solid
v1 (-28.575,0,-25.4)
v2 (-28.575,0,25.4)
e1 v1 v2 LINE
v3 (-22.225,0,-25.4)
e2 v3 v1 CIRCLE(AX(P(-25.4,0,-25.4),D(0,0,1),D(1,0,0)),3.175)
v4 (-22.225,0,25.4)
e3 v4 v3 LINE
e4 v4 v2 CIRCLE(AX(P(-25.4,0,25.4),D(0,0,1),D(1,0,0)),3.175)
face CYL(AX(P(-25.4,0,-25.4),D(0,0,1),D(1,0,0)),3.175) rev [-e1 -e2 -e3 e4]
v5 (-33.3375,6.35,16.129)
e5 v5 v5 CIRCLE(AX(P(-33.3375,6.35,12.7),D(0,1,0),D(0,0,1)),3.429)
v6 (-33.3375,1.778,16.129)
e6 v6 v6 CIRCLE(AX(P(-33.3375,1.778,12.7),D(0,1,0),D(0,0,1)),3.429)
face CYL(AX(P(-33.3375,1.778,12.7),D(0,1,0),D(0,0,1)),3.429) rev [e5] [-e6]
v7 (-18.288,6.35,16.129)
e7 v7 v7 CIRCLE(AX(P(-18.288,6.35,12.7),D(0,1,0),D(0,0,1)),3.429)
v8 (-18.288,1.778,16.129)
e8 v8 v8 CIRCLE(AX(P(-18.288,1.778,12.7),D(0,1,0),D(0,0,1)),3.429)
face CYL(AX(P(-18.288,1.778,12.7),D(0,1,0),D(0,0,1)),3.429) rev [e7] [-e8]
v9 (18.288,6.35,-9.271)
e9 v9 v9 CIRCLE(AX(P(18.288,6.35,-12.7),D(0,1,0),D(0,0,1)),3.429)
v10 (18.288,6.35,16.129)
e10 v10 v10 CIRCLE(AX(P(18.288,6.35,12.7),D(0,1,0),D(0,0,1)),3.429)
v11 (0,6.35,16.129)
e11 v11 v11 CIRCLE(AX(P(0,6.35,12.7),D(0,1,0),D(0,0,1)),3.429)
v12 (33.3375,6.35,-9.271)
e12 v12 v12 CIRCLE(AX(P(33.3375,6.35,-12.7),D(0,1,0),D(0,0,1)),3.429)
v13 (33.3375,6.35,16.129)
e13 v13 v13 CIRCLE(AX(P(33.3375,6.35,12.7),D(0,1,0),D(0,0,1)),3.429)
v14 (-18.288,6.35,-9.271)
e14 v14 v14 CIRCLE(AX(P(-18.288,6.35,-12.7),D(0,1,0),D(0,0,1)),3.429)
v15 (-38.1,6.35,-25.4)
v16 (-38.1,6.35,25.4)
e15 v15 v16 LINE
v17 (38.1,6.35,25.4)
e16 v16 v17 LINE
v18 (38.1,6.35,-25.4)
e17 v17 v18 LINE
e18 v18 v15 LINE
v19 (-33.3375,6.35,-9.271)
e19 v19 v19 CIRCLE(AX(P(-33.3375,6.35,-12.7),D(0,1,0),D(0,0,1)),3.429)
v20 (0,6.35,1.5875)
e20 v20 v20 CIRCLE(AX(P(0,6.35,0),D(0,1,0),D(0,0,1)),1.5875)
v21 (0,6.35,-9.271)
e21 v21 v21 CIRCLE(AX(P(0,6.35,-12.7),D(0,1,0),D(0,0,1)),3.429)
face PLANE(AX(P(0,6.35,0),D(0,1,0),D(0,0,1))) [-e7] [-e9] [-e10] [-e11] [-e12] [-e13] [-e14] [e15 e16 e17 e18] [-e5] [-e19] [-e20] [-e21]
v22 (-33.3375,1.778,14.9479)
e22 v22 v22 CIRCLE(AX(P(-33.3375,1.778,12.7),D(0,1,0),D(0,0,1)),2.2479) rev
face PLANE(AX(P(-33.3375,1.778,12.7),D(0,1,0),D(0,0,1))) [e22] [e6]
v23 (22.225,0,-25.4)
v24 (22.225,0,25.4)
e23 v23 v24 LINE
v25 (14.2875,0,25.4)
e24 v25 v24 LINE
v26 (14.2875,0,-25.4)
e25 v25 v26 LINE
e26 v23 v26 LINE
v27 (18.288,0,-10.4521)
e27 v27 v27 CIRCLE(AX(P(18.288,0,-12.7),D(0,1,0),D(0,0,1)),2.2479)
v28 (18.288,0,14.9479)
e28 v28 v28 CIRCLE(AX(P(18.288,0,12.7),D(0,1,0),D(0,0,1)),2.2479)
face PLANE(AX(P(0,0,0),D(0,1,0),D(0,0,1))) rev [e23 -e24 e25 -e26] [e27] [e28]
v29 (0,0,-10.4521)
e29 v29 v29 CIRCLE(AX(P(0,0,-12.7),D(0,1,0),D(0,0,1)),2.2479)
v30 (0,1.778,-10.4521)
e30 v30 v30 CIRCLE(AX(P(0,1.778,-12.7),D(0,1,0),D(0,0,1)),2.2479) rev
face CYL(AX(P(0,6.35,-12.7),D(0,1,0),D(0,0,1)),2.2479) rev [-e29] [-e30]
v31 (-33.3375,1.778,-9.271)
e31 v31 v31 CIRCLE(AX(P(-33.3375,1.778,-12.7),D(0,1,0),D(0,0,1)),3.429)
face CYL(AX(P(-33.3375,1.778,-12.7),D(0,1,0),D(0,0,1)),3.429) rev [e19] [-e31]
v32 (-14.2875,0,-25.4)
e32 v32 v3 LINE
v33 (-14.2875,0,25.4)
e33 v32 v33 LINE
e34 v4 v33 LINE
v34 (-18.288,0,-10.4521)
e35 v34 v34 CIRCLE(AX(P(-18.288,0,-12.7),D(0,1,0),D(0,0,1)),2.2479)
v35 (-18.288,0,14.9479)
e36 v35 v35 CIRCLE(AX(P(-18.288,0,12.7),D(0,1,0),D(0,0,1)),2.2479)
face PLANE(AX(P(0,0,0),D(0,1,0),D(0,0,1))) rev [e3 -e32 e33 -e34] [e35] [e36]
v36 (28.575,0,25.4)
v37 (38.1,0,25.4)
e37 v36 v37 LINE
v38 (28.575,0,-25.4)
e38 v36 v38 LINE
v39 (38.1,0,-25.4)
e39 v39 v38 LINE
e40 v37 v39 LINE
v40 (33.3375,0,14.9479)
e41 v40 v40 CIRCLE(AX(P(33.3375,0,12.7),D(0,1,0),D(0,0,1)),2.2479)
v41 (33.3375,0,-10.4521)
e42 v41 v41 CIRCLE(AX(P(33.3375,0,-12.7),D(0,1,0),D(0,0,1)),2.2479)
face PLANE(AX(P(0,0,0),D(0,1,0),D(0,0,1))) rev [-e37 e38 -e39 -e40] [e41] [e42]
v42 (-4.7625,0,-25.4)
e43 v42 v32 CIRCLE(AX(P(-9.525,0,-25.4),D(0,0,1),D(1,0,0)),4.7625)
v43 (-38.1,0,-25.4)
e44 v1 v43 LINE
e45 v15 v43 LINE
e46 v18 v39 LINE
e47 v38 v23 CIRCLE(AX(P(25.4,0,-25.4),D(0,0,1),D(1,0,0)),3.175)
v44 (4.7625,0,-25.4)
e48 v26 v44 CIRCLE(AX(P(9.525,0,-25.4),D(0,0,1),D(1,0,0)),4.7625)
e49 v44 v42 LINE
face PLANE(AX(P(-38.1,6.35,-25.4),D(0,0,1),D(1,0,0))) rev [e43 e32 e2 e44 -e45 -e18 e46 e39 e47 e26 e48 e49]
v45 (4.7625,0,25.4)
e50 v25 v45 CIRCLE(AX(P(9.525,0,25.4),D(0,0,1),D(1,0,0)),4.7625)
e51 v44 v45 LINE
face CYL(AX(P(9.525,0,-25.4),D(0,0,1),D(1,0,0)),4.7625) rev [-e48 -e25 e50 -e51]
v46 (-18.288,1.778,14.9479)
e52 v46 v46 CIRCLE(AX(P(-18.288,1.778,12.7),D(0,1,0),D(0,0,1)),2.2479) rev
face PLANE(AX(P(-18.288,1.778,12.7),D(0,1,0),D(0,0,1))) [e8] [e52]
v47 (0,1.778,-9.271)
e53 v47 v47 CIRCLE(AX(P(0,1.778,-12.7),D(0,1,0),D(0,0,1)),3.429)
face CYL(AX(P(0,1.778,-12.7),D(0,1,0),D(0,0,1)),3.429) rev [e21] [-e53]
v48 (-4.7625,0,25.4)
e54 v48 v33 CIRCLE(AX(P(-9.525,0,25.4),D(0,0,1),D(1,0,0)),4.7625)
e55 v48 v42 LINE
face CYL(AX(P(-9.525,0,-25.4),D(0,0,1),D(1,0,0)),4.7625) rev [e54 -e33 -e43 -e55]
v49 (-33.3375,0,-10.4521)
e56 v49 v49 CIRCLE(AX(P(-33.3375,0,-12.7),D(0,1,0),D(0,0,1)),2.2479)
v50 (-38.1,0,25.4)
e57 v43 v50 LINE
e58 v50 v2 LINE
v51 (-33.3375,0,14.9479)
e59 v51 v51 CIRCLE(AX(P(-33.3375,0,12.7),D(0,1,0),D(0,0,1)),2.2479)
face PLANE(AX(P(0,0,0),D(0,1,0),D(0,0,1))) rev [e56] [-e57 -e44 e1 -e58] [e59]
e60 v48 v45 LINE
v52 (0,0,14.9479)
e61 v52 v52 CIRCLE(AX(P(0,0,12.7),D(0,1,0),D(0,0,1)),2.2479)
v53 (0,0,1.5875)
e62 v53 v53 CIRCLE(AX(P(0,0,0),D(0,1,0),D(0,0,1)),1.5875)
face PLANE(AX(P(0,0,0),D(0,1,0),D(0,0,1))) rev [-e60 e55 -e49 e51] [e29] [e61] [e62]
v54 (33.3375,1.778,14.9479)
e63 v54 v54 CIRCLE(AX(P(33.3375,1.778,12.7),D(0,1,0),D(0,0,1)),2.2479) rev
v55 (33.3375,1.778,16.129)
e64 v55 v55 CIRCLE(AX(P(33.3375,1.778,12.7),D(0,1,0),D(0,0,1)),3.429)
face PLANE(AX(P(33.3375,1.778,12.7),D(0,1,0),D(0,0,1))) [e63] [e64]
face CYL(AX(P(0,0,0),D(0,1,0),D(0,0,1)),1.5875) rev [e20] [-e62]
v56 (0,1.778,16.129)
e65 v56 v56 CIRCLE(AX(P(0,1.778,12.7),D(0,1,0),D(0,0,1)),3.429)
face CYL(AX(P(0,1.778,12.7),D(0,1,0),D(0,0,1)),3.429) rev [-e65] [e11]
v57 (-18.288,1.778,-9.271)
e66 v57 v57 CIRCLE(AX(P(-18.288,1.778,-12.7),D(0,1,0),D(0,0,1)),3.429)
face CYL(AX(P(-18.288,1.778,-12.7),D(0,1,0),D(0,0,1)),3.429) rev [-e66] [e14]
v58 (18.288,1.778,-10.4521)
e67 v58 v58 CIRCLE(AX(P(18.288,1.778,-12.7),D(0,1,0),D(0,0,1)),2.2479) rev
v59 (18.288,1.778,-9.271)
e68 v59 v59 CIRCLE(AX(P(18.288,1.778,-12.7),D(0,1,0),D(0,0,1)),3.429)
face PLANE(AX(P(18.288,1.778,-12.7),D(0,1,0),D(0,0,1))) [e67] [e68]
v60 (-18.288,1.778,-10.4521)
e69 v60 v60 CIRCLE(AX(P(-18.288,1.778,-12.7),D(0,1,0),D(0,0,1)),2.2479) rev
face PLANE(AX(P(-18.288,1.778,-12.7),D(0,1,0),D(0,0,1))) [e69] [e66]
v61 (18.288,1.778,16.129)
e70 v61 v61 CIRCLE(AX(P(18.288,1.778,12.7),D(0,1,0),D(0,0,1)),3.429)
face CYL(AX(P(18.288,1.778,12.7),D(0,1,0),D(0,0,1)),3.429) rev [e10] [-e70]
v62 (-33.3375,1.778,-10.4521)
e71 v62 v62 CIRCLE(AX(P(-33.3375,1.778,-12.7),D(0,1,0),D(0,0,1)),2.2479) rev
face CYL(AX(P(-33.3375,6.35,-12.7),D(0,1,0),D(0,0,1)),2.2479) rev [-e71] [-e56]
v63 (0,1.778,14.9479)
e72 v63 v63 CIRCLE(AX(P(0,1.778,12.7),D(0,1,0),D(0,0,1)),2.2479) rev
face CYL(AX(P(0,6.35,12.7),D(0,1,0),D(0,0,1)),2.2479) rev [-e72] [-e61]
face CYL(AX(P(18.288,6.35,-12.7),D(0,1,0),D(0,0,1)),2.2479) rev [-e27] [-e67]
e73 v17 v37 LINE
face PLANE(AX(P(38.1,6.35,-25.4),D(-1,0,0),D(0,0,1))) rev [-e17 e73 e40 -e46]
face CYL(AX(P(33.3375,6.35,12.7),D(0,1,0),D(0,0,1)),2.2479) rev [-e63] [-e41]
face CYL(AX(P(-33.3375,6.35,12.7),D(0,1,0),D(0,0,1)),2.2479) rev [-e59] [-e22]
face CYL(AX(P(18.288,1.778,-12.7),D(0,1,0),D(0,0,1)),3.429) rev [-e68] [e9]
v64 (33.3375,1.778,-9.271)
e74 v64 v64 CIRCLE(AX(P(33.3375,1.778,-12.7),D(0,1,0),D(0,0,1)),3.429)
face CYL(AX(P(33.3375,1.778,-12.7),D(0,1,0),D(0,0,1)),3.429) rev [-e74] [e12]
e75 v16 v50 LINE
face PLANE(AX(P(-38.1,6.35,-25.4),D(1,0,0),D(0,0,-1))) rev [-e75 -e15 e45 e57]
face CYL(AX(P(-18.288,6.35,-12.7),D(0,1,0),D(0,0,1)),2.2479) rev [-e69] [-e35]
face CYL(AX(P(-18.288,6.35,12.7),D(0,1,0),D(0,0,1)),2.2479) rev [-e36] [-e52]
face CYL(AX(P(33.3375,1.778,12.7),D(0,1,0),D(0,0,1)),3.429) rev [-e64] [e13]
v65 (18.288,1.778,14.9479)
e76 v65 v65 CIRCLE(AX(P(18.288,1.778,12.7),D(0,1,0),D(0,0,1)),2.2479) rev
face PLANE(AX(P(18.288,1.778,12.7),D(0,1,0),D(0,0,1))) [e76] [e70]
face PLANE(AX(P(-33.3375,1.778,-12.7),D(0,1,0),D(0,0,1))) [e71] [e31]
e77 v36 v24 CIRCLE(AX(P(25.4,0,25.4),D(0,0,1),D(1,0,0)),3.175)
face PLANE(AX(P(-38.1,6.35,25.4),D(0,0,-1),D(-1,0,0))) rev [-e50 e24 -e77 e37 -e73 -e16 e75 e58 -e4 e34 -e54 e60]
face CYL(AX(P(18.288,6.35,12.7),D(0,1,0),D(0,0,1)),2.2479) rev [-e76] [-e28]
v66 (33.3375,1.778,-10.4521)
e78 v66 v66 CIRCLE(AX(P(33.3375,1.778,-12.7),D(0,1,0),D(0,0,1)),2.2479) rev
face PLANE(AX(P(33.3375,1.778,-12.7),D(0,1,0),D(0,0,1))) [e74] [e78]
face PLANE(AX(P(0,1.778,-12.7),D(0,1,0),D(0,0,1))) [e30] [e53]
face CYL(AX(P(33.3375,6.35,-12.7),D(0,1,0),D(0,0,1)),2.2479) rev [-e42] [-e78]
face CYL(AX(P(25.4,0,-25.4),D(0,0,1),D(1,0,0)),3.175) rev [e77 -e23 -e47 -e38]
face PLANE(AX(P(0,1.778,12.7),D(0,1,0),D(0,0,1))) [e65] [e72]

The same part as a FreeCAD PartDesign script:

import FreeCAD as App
import Part
import Sketcher
from FreeCAD import Vector
Q = App.Units.Quantity

doc = App.newDocument("Part")
body = doc.addObject("PartDesign::Body", "Body")

# Sketch on XZ plane
sketch1 = doc.addObject("Sketcher::SketchObject", "Sketch")
body.addObject(sketch1)
sketch1.AttachmentSupport = (doc.XZ_Plane, [""])
sketch1.MapMode = "FlatFace"
sketch1.addGeometry([
    Part.LineSegment(Vector(-38, -25, 0), Vector(-38, 25, 0)),
    Part.LineSegment(Vector(-38, 25, 0), Vector(38, 25, 0)),
    Part.LineSegment(Vector(38, 25, 0), Vector(38, -25, 0)),
    Part.LineSegment(Vector(38, -25, 0), Vector(-38, -25, 0)),
], False)
sketch1.addConstraint([
    Sketcher.Constraint("Coincident", 0, 2, 1, 1),
    Sketcher.Constraint("Coincident", 1, 2, 2, 1),
    Sketcher.Constraint("Coincident", 2, 2, 3, 1),
    Sketcher.Constraint("Coincident", 3, 2, 0, 1),
    Sketcher.Constraint("Vertical", 0),
    Sketcher.Constraint("Horizontal", 1),
    Sketcher.Constraint("Vertical", 2),
    Sketcher.Constraint("Horizontal", 3),
    Sketcher.Constraint("Symmetric", 0, 2, 2, 2, -1, 1),
    Sketcher.Constraint("DistanceX", 1, 1, 1, 2, Q("3 in")),
    Sketcher.Constraint("DistanceY", 0, 1, 0, 2, Q("2 in")),
])
pad1 = doc.addObject("PartDesign::Pad", "Pad")
body.addObject(pad1)
pad1.Profile = sketch1
pad1.Length = Q("0.25 in")
pad1.Reversed = True

# Sketch on XY plane
sketch2 = doc.addObject("Sketcher::SketchObject", "Sketch001")
body.addObject(sketch2)
sketch2.AttachmentSupport = (doc.XY_Plane, [""])
sketch2.MapMode = "FlatFace"
sketch2.AttachmentOffset = App.Placement(Vector(0, 0, 1 * 25.4), App.Rotation())
sketch2.addGeometry([
    Part.Circle(Vector(-25.4, 0, 0), Vector(0, 0, 1), 3.2),
    Part.Circle(Vector(25.4, 0, 0), Vector(0, 0, 1), 3.2),
], False)
sketch2.addConstraint([
    Sketcher.Constraint("Equal", 0, 1),
    Sketcher.Constraint("Symmetric", 0, 3, 1, 3, -1, 1),
    Sketcher.Constraint("PointOnObject", 0, 3, -1),
    Sketcher.Constraint("Diameter", 0, Q("0.25 in")),
    Sketcher.Constraint("DistanceX", 0, 3, -1, 1, Q("1 in")),
])
pocket1 = doc.addObject("PartDesign::Pocket", "Pocket")
body.addObject(pocket1)
pocket1.Profile = sketch2
pocket1.Type = "ThroughAll"

# Sketch on XY plane
sketch3 = doc.addObject("Sketcher::SketchObject", "Sketch002")
body.addObject(sketch3)
sketch3.AttachmentSupport = (doc.XY_Plane, [""])
sketch3.MapMode = "FlatFace"
sketch3.AttachmentOffset = App.Placement(Vector(0, 0, 1 * 25.4), App.Rotation())
sketch3.addGeometry([
    Part.Circle(Vector(-9.5, 0, 0), Vector(0, 0, 1), 4.8),
    Part.Circle(Vector(9.5, 0, 0), Vector(0, 0, 1), 4.8),
], False)
sketch3.addConstraint([
    Sketcher.Constraint("Equal", 0, 1),
    Sketcher.Constraint("Symmetric", 0, 3, 1, 3, -1, 1),
    Sketcher.Constraint("PointOnObject", 0, 3, -1),
    Sketcher.Constraint("Diameter", 0, Q("0.375 in")),
    Sketcher.Constraint("DistanceX", 0, 3, 1, 3, Q("0.75 in")),
])
pocket2 = doc.addObject("PartDesign::Pocket", "Pocket001")
body.addObject(pocket2)
pocket2.Profile = sketch3
pocket2.Type = "ThroughAll"

# Sketch on XZ plane
sketch4 = doc.addObject("Sketcher::SketchObject", "Sketch003")
body.addObject(sketch4)
sketch4.AttachmentSupport = (doc.XZ_Plane, [""])
sketch4.MapMode = "FlatFace"
sketch4.AttachmentOffset = App.Placement(Vector(0, 0, -0.25 * 25.4), App.Rotation())
sketch4.addGeometry([
    Part.Circle(Vector(-33.3, -12.7, 0), Vector(0, 0, 1), 2.2),  # 0
    Part.Circle(Vector(-33.3, 12.7, 0), Vector(0, 0, 1), 2.2),  # 1
    Part.Circle(Vector(-18.3, 12.7, 0), Vector(0, 0, 1), 2.2),  # 2
    Part.Circle(Vector(0, 12.7, 0), Vector(0, 0, 1), 2.2),  # 3
    Part.Circle(Vector(18.3, 12.7, 0), Vector(0, 0, 1), 2.2),  # 4
    Part.Circle(Vector(33.3, 12.7, 0), Vector(0, 0, 1), 2.2),  # 5
    Part.Circle(Vector(33.3, -12.7, 0), Vector(0, 0, 1), 2.2),  # 6
    Part.Circle(Vector(18.3, -12.7, 0), Vector(0, 0, 1), 2.2),  # 7
    Part.Circle(Vector(0, -12.7, 0), Vector(0, 0, 1), 2.2),  # 8
    Part.Circle(Vector(-18.3, -12.7, 0), Vector(0, 0, 1), 2.2),  # 9
], False)
sketch4.addConstraint([
    Sketcher.Constraint("Equal", 0, 1),
    Sketcher.Constraint("Equal", 1, 2),
    Sketcher.Constraint("Equal", 2, 3),
    Sketcher.Constraint("Equal", 3, 4),
    Sketcher.Constraint("Equal", 4, 5),
    Sketcher.Constraint("Equal", 5, 6),
    Sketcher.Constraint("Equal", 6, 7),
    Sketcher.Constraint("Equal", 7, 8),
    Sketcher.Constraint("Equal", 8, 9),
    Sketcher.Constraint("Symmetric", 0, 3, 5, 3, -1, 1),
    Sketcher.Constraint("Symmetric", 1, 3, 6, 3, -1, 1),
    Sketcher.Constraint("Symmetric", 2, 3, 7, 3, -1, 1),
    Sketcher.Constraint("Symmetric", 3, 3, 8, 3, -1, 1),
    Sketcher.Constraint("Symmetric", 4, 3, 9, 3, -1, 1),
    Sketcher.Constraint("Symmetric", 2, 3, 4, 3, -2),
    Sketcher.Constraint("Symmetric", 1, 3, 5, 3, -2),
    Sketcher.Constraint("PointOnObject", 3, 3, -2),
    Sketcher.Constraint("Horizontal", 1, 3, 2, 3),
    Sketcher.Constraint("Horizontal", 2, 3, 3, 3),
    Sketcher.Constraint("Diameter", 0, Q("0.177 in")),
    Sketcher.Constraint("DistanceY", 0, 3, 1, 3, Q("1 in")),
    Sketcher.Constraint("DistanceX", 2, 3, -1, 1, Q("0.72 in")),
    Sketcher.Constraint("DistanceX", 0, 3, -1, 1, Q("1.3125 in")),
])
doc.recompute()
hole = doc.addObject("PartDesign::Hole", "Hole")
body.addObject(hole)
hole.Profile = sketch4
hole.ThreadType = "None"
hole.Diameter = Q("0.177 in")
hole.DepthType = "ThroughAll"
hole.Reversed = True

# Sketch on XZ plane
sketch5 = doc.addObject("Sketcher::SketchObject", "Sketch004")
body.addObject(sketch5)
sketch5.AttachmentSupport = (doc.XZ_Plane, [""])
sketch5.MapMode = "FlatFace"
sketch5.AttachmentOffset = App.Placement(Vector(0, 0, -0.25 * 25.4), App.Rotation())
sketch5.addGeometry([
    Part.Circle(Vector(-33.3, -12.7, 0), Vector(0, 0, 1), 3.4),  # 0
    Part.Circle(Vector(-18.3, -12.7, 0), Vector(0, 0, 1), 3.4),  # 1
    Part.Circle(Vector(0, -12.7, 0), Vector(0, 0, 1), 3.4),  # 2
    Part.Circle(Vector(18.3, -12.7, 0), Vector(0, 0, 1), 3.4),  # 3
    Part.Circle(Vector(33.3, -12.7, 0), Vector(0, 0, 1), 3.4),  # 4
    Part.Circle(Vector(33.3, 12.7, 0), Vector(0, 0, 1), 3.4),  # 5
    Part.Circle(Vector(18.3, 12.7, 0), Vector(0, 0, 1), 3.4),  # 6
    Part.Circle(Vector(0, 12.7, 0), Vector(0, 0, 1), 3.4),  # 7
    Part.Circle(Vector(-18.3, 12.7, 0), Vector(0, 0, 1), 3.4),  # 8
    Part.Circle(Vector(-33.3, 12.7, 0), Vector(0, 0, 1), 3.4),  # 9
], False)
sketch5.addConstraint([
    Sketcher.Constraint("Equal", 0, 1),
    Sketcher.Constraint("Equal", 1, 2),
    Sketcher.Constraint("Equal", 2, 3),
    Sketcher.Constraint("Equal", 3, 4),
    Sketcher.Constraint("Equal", 4, 5),
    Sketcher.Constraint("Equal", 5, 6),
    Sketcher.Constraint("Equal", 6, 7),
    Sketcher.Constraint("Equal", 7, 8),
    Sketcher.Constraint("Equal", 8, 9),
    Sketcher.Constraint("Symmetric", 0, 3, 5, 3, -1, 1),
    Sketcher.Constraint("Symmetric", 1, 3, 6, 3, -1, 1),
    Sketcher.Constraint("Symmetric", 2, 3, 7, 3, -1, 1),
    Sketcher.Constraint("Symmetric", 3, 3, 8, 3, -1, 1),
    Sketcher.Constraint("Symmetric", 4, 3, 9, 3, -1, 1),
    Sketcher.Constraint("Symmetric", 1, 3, 3, 3, -2),
    Sketcher.Constraint("Symmetric", 0, 3, 4, 3, -2),
    Sketcher.Constraint("PointOnObject", 2, 3, -2),
    Sketcher.Constraint("Horizontal", 0, 3, 1, 3),
    Sketcher.Constraint("Horizontal", 1, 3, 2, 3),
    Sketcher.Constraint("Diameter", 0, Q("0.27 in")),
    Sketcher.Constraint("DistanceY", 4, 3, 5, 3, Q("1 in")),
    Sketcher.Constraint("DistanceX", 1, 3, -1, 1, Q("0.72 in")),
    Sketcher.Constraint("DistanceX", 0, 3, -1, 1, Q("1.3125 in")),
])
pocket3 = doc.addObject("PartDesign::Pocket", "Pocket002")
body.addObject(pocket3)
pocket3.Profile = sketch5
pocket3.Length = Q("0.18 in")
pocket3.Reversed = True

# Sketch on XZ plane
sketch6 = doc.addObject("Sketcher::SketchObject", "Sketch005")
body.addObject(sketch6)
sketch6.AttachmentSupport = (doc.XZ_Plane, [""])
sketch6.MapMode = "FlatFace"
sketch6.AttachmentOffset = App.Placement(Vector(0, 0, -0.25 * 25.4), App.Rotation())
sketch6.addGeometry(Part.Circle(Vector(0, 0, 0), Vector(0, 0, 1), 1.6), False)
sketch6.addConstraint([
    Sketcher.Constraint("Coincident", 0, 3, -1, 1),
    Sketcher.Constraint("Diameter", 0, Q("0.125 in")),
])
pocket4 = doc.addObject("PartDesign::Pocket", "Pocket003")
body.addObject(pocket4)
pocket4.Profile = sketch6
pocket4.Type = "ThroughAll"
pocket4.Reversed = True

doc.recompute()
